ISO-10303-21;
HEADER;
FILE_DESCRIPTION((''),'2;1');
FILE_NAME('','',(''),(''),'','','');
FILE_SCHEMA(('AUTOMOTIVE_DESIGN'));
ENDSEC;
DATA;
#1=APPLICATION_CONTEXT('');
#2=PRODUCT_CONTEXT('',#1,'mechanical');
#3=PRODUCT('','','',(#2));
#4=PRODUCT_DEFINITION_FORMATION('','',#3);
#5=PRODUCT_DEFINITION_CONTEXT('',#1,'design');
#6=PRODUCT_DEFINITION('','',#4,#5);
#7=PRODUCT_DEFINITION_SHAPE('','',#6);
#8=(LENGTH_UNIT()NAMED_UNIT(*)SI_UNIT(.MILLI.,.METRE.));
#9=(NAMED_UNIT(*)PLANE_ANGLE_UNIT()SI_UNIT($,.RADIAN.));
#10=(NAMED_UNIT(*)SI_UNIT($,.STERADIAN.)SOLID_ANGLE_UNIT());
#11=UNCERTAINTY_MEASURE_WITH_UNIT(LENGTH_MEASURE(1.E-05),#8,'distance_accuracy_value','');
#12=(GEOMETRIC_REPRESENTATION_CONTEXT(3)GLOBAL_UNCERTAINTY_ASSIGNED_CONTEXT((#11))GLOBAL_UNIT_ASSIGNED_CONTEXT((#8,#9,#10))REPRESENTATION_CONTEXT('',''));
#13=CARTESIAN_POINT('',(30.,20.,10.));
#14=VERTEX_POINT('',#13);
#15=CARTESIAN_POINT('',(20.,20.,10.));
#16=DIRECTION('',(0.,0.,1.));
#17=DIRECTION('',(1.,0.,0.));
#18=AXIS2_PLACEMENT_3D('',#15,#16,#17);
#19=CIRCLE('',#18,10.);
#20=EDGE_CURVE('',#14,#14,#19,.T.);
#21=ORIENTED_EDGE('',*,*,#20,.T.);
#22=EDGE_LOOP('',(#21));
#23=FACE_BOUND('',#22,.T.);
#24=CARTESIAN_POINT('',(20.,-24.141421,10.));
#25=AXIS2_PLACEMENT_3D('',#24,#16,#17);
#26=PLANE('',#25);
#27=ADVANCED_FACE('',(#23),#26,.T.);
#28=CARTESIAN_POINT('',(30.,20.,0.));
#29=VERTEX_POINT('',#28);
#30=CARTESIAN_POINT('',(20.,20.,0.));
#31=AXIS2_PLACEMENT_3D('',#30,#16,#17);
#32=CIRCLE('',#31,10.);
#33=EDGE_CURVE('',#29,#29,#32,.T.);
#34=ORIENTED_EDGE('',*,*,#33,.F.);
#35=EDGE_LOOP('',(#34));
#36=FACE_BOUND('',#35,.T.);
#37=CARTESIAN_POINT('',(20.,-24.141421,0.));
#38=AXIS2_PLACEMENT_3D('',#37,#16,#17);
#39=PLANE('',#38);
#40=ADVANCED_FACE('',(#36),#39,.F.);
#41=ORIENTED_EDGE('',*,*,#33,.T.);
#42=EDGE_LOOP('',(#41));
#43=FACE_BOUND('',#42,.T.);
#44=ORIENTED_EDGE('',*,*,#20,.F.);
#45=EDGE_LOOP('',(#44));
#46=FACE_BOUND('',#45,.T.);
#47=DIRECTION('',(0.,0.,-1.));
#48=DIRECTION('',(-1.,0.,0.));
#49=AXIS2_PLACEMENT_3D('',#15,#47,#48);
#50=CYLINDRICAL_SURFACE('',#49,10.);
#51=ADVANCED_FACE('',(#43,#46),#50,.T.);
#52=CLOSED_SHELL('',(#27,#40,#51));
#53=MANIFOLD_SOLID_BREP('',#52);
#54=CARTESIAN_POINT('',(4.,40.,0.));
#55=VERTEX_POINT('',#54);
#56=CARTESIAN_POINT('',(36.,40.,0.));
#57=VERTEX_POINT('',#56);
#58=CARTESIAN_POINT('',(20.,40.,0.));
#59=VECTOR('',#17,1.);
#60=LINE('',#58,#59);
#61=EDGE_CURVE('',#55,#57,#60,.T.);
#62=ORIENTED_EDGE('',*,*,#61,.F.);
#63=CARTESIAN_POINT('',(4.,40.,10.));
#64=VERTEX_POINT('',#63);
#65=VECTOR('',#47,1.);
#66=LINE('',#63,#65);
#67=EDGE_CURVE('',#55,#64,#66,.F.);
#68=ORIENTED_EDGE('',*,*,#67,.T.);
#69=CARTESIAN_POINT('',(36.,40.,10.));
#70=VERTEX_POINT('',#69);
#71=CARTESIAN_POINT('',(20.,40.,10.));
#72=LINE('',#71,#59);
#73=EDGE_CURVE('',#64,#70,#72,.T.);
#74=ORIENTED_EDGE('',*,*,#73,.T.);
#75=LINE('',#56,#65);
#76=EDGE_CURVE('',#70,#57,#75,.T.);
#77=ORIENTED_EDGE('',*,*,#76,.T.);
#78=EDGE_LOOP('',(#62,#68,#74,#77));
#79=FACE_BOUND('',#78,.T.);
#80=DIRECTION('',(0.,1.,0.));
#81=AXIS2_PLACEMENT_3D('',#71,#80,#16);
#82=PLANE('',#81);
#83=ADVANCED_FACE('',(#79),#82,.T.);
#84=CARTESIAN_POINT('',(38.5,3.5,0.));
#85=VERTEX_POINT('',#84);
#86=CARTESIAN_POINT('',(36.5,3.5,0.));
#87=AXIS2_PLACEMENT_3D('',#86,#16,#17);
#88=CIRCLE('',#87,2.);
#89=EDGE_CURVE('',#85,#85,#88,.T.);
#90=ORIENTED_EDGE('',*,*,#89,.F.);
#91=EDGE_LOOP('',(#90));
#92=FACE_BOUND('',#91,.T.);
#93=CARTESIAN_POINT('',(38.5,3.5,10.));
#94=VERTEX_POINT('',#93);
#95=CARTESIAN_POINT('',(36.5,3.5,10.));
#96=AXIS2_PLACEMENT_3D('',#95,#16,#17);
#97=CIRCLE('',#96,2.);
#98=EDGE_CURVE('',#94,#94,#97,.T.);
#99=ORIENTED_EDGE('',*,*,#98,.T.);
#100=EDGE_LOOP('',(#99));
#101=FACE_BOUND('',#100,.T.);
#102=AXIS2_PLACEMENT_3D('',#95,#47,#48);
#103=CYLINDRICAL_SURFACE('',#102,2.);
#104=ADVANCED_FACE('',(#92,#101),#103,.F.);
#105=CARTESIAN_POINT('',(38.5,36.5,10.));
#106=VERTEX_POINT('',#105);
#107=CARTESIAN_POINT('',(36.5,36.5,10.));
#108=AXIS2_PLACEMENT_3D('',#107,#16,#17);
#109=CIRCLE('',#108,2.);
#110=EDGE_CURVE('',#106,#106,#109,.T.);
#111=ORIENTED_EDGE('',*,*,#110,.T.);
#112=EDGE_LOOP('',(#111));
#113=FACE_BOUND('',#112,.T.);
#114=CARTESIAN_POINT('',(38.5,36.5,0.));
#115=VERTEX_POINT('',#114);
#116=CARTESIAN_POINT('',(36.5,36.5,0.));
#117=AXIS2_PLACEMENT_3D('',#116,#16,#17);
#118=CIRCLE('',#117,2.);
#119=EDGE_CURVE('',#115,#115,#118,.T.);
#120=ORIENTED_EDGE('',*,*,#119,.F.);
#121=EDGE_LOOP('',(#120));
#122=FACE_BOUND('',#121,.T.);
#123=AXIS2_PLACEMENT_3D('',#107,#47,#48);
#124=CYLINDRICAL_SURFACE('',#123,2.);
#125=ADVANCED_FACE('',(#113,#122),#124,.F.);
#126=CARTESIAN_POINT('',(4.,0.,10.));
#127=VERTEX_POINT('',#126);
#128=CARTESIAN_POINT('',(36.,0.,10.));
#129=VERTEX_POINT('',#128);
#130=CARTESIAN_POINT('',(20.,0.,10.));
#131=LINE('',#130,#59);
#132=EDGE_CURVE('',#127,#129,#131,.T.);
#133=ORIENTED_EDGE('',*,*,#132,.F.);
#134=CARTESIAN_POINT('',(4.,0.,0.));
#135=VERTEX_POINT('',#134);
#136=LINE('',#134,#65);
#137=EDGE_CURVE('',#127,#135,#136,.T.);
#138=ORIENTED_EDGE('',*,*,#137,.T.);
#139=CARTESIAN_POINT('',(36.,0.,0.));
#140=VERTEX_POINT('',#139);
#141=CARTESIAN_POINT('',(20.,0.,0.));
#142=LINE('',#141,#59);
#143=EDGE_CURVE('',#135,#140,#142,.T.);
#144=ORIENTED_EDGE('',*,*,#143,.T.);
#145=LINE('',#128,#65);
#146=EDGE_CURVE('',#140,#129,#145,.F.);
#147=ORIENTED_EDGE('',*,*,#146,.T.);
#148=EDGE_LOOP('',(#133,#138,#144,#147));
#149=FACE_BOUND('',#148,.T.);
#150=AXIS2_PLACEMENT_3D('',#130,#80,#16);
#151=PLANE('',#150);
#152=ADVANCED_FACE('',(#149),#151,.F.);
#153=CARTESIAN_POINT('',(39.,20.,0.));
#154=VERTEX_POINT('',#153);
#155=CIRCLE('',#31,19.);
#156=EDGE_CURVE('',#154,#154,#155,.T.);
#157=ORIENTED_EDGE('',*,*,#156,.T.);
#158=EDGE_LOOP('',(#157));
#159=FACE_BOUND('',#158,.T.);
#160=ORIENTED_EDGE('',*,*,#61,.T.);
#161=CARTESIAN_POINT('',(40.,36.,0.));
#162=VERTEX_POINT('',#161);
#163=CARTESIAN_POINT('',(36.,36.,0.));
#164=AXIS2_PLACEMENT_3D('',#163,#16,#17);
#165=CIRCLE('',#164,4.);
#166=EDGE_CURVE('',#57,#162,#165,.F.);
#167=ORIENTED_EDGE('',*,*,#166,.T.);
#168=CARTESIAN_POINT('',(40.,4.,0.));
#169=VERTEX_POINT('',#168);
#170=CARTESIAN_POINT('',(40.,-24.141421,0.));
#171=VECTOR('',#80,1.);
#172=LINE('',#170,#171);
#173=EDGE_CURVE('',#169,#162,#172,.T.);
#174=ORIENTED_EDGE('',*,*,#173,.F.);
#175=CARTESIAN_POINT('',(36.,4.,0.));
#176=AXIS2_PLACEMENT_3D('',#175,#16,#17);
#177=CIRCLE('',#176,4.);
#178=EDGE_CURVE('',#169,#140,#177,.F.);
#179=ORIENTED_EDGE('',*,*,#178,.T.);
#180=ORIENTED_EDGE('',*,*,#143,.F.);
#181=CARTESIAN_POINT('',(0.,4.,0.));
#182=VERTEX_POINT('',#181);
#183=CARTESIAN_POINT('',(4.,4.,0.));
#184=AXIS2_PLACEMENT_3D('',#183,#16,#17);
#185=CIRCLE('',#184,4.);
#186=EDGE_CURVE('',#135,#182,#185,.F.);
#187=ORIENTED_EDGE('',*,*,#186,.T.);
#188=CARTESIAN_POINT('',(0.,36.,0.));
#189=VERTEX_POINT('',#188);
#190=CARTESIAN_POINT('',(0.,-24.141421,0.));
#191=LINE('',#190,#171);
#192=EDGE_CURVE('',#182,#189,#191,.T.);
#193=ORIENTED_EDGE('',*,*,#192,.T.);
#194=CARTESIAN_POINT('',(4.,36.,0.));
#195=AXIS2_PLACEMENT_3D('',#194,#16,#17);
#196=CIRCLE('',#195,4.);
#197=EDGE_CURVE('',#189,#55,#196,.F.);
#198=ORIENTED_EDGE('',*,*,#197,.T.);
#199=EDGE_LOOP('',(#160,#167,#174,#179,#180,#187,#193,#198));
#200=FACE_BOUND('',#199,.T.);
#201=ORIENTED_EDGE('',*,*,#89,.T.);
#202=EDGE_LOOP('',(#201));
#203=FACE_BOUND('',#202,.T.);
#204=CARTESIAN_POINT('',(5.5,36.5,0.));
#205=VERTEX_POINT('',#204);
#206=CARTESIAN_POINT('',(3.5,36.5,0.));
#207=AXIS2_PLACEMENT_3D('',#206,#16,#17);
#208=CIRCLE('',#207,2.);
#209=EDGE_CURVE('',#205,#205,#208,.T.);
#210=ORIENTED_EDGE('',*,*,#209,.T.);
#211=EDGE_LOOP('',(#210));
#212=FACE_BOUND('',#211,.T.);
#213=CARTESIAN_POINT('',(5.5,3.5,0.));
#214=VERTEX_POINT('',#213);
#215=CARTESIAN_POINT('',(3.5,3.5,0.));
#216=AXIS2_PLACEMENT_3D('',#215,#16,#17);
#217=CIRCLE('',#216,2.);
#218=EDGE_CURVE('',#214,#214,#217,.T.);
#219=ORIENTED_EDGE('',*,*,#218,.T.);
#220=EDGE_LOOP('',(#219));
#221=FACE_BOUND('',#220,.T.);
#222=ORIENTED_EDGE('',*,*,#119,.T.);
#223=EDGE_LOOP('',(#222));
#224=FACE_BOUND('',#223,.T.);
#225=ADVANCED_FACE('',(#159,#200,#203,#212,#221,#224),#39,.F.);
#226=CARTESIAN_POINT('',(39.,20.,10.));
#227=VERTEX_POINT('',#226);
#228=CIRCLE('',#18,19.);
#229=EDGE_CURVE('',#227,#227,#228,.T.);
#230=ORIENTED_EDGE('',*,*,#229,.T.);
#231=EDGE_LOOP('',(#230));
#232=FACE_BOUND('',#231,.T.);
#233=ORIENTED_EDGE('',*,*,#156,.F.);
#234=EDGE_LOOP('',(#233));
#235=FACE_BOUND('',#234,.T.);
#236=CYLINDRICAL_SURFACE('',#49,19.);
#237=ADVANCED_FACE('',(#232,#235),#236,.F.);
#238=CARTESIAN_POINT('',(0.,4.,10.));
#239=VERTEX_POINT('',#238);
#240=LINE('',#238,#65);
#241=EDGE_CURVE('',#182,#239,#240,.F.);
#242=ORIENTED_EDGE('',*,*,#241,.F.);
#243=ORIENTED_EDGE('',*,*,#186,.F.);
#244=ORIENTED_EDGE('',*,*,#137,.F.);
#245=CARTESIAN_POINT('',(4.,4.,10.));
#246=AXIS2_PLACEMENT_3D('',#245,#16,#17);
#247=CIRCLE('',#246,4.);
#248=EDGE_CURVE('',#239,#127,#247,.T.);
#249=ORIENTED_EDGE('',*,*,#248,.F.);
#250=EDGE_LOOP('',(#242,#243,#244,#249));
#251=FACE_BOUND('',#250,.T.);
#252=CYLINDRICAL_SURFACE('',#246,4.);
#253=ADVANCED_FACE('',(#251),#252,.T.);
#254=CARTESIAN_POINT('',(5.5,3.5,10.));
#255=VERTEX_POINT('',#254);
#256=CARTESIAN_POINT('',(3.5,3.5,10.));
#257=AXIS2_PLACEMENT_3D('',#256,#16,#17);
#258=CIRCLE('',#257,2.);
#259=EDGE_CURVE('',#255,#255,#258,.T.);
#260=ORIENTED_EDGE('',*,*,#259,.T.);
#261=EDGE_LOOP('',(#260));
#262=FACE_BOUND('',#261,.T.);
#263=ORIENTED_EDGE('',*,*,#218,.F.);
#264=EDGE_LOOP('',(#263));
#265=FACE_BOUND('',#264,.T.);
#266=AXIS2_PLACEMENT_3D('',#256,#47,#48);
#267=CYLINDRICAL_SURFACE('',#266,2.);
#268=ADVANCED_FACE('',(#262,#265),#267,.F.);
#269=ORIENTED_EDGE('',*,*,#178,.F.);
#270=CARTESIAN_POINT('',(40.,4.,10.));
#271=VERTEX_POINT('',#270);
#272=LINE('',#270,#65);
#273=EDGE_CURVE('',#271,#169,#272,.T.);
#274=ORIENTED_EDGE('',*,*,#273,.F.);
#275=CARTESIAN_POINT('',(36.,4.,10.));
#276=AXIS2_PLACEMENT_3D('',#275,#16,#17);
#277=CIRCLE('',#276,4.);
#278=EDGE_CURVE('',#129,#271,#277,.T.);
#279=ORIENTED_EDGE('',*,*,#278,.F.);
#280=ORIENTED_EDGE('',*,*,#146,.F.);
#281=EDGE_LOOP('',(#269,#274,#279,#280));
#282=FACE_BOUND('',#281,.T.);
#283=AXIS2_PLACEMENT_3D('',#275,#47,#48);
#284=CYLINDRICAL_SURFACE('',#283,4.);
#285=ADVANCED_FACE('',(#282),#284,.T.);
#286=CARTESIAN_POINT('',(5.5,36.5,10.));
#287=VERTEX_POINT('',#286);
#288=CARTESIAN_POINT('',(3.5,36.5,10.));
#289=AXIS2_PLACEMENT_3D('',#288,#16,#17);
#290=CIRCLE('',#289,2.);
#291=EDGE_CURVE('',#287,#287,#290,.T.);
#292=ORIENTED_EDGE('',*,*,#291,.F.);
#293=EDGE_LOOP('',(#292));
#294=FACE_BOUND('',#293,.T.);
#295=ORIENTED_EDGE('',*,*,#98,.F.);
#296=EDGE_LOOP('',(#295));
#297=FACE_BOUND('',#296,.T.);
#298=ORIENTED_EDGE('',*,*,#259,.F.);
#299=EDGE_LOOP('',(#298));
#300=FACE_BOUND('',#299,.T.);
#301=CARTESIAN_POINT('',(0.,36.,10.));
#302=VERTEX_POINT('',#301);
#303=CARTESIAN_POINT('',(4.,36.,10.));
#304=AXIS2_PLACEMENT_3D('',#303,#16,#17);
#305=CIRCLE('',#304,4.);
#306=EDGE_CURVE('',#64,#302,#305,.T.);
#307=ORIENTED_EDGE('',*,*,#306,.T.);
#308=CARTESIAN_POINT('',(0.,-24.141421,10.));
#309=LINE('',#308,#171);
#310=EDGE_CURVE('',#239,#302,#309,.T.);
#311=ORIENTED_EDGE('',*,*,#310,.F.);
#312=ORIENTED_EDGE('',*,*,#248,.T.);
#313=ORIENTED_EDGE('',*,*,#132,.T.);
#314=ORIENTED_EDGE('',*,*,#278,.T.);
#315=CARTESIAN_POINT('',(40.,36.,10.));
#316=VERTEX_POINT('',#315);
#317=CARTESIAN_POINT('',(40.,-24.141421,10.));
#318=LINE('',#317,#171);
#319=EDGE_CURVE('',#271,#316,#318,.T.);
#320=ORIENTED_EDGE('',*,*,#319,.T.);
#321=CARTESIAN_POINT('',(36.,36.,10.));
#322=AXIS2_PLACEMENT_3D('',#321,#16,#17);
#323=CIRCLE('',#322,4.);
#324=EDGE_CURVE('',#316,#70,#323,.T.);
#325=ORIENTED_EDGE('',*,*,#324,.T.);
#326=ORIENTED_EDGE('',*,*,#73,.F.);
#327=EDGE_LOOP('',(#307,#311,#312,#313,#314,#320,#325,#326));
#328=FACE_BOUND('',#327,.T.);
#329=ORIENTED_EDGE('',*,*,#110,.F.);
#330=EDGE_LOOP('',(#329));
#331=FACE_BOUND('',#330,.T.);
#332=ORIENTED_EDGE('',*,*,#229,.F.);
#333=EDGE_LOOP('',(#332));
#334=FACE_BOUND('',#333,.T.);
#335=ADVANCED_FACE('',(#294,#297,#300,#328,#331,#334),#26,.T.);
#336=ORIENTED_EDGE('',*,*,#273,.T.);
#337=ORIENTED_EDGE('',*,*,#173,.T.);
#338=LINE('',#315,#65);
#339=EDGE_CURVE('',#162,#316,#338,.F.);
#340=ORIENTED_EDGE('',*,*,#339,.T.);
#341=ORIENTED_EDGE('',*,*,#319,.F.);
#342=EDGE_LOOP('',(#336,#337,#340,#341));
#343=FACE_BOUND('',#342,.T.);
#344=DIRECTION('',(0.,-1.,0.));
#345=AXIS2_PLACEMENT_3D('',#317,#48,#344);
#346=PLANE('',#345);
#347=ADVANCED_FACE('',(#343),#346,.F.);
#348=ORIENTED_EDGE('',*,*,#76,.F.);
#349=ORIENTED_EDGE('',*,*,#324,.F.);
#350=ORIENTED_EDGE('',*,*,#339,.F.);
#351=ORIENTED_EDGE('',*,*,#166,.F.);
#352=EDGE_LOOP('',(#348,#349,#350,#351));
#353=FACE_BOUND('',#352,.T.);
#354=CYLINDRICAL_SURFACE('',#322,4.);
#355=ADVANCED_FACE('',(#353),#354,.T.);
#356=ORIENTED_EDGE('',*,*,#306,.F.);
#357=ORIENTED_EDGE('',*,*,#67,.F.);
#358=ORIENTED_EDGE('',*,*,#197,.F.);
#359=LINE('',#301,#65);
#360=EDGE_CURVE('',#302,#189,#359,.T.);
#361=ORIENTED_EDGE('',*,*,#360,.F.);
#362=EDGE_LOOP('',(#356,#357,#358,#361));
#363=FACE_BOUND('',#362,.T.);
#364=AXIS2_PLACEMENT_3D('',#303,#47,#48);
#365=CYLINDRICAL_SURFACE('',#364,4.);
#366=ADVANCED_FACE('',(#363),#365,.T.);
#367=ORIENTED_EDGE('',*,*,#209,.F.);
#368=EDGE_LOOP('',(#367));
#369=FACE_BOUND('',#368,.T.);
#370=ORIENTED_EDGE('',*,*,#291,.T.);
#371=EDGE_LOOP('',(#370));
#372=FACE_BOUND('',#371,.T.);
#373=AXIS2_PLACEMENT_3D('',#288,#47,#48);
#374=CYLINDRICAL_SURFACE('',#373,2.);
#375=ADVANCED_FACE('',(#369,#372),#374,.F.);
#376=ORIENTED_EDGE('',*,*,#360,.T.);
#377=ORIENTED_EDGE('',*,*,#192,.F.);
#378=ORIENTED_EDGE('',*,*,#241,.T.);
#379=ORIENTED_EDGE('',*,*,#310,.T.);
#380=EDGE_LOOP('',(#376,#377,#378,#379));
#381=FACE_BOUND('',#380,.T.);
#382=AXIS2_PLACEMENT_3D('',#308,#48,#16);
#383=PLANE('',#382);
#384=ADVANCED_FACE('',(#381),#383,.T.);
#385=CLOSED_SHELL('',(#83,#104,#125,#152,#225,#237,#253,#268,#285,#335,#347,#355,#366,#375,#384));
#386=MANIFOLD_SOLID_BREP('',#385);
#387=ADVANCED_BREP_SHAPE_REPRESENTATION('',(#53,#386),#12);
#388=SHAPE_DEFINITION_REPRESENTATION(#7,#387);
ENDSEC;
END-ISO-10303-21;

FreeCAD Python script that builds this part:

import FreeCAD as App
import Part
import Sketcher
Q = App.Units.Quantity


def edges_at(feature, points):
    """Names of the edges that pass closest to the given points."""
    edges = feature.Shape.Edges
    near = lambda p: min(range(len(edges)), key=lambda i: edges[i].distToShape(Part.Vertex(*p))[0])
    return sorted({f"Edge{near(p) + 1}" for p in points})

doc = App.newDocument("Part")
body = doc.addObject("PartDesign::Body", "Body")

# Sketch on XY plane
sketch1 = body.newObject("Sketcher::SketchObject", "Sketch")
sketch1.AttachmentSupport = (doc.getObject("XY_Plane"), [""])
sketch1.MapMode = "FlatFace"
sketch1.addGeometry([
    Part.LineSegment(App.Vector(0, 40, 0), App.Vector(0, 0, 0)),  # 0
    Part.LineSegment(App.Vector(0, 0, 0), App.Vector(40, 0, 0)),  # 1
    Part.LineSegment(App.Vector(40, 0, 0), App.Vector(40, 40, 0)),  # 2
    Part.LineSegment(App.Vector(40, 40, 0), App.Vector(0, 40, 0)),  # 3
    Part.Circle(App.Vector(3.5, 3.5, 0), App.Vector(0, 0, 1), 2),  # 4
    Part.Circle(App.Vector(36.5, 3.5, 0), App.Vector(0, 0, 1), 2),  # 5
    Part.Circle(App.Vector(3.5, 36.5, 0), App.Vector(0, 0, 1), 2),  # 6
    Part.Circle(App.Vector(20, 20, 0), App.Vector(0, 0, 1), 19),  # 7
    Part.Circle(App.Vector(36.5, 36.5, 0), App.Vector(0, 0, 1), 2),  # 8
], False)
sketch1.addConstraint([
    Sketcher.Constraint("Coincident", 0, 2, 1, 1),
    Sketcher.Constraint("Coincident", 1, 2, 2, 1),
    Sketcher.Constraint("Coincident", 2, 2, 3, 1),
    Sketcher.Constraint("Coincident", 3, 2, 0, 1),
    Sketcher.Constraint("Vertical", 0),
    Sketcher.Constraint("Horizontal", 1),
    Sketcher.Constraint("Vertical", 2),
    Sketcher.Constraint("Horizontal", 3),
    Sketcher.Constraint("Coincident", 0, 2, -1, 1),
    Sketcher.Constraint("Equal", 4, 5),
    Sketcher.Constraint("Equal", 5, 6),
    Sketcher.Constraint("Equal", 6, 8),
    Sketcher.Constraint("Horizontal", 4, 3, 5, 3),
    Sketcher.Constraint("Horizontal", 6, 3, 8, 3),
    Sketcher.Constraint("Vertical", 4, 3, 6, 3),
    Sketcher.Constraint("Vertical", 5, 3, 8, 3),
    Sketcher.Constraint("Equal", 3, 0),
    Sketcher.Constraint("Diameter", 4, Q("4 mm")),
    Sketcher.Constraint("Diameter", 7, Q("38 mm")),
    Sketcher.Constraint("DistanceX", 1, 1, 1, 2, Q("40 mm")),
    Sketcher.Constraint("DistanceX", -1, 1, 7, 3, Q("20 mm")),
    Sketcher.Constraint("DistanceY", -1, 1, 7, 3, Q("20 mm")),
    Sketcher.Constraint("DistanceX", 4, 3, 5, 3, Q("33 mm")),
    Sketcher.Constraint("DistanceY", 4, 3, 6, 3, Q("33 mm")),
    Sketcher.Constraint("DistanceX", -1, 1, 4, 3, Q("3.5 mm")),
    Sketcher.Constraint("DistanceY", -1, 1, 4, 3, Q("3.5 mm")),
])
pad1 = body.newObject("PartDesign::Pad", "Pad")
pad1.Profile = sketch1
pad1.Length = 10
doc.recompute()

fillet = body.newObject("PartDesign::Fillet", "Fillet")
fillet.Base = (pad1, edges_at(pad1, [
    (0, 0, 5),
    (0, 40, 5),
    (40, 40, 5),
    (40, 0, 5),
]))
fillet.Radius = 4
body2 = doc.addObject("PartDesign::Body", "Body001")

# Sketch on XY plane
sketch2 = body2.newObject("Sketcher::SketchObject", "Sketch001")
sketch2.AttachmentSupport = (doc.getObject("XY_Plane001"), [""])
sketch2.MapMode = "FlatFace"
sketch2.addGeometry(Part.Circle(App.Vector(20, 20, 0), App.Vector(0, 0, 1), 10), False)
sketch2.addConstraint([
    Sketcher.Constraint("Diameter", 0, Q("20 mm")),
    Sketcher.Constraint("DistanceX", -1, 1, 0, 3, Q("20 mm")),
    Sketcher.Constraint("DistanceY", -1, 1, 0, 3, Q("20 mm")),
])
pad2 = body2.newObject("PartDesign::Pad", "Pad001")
pad2.Profile = sketch2
pad2.Length = 10

doc.recompute()
